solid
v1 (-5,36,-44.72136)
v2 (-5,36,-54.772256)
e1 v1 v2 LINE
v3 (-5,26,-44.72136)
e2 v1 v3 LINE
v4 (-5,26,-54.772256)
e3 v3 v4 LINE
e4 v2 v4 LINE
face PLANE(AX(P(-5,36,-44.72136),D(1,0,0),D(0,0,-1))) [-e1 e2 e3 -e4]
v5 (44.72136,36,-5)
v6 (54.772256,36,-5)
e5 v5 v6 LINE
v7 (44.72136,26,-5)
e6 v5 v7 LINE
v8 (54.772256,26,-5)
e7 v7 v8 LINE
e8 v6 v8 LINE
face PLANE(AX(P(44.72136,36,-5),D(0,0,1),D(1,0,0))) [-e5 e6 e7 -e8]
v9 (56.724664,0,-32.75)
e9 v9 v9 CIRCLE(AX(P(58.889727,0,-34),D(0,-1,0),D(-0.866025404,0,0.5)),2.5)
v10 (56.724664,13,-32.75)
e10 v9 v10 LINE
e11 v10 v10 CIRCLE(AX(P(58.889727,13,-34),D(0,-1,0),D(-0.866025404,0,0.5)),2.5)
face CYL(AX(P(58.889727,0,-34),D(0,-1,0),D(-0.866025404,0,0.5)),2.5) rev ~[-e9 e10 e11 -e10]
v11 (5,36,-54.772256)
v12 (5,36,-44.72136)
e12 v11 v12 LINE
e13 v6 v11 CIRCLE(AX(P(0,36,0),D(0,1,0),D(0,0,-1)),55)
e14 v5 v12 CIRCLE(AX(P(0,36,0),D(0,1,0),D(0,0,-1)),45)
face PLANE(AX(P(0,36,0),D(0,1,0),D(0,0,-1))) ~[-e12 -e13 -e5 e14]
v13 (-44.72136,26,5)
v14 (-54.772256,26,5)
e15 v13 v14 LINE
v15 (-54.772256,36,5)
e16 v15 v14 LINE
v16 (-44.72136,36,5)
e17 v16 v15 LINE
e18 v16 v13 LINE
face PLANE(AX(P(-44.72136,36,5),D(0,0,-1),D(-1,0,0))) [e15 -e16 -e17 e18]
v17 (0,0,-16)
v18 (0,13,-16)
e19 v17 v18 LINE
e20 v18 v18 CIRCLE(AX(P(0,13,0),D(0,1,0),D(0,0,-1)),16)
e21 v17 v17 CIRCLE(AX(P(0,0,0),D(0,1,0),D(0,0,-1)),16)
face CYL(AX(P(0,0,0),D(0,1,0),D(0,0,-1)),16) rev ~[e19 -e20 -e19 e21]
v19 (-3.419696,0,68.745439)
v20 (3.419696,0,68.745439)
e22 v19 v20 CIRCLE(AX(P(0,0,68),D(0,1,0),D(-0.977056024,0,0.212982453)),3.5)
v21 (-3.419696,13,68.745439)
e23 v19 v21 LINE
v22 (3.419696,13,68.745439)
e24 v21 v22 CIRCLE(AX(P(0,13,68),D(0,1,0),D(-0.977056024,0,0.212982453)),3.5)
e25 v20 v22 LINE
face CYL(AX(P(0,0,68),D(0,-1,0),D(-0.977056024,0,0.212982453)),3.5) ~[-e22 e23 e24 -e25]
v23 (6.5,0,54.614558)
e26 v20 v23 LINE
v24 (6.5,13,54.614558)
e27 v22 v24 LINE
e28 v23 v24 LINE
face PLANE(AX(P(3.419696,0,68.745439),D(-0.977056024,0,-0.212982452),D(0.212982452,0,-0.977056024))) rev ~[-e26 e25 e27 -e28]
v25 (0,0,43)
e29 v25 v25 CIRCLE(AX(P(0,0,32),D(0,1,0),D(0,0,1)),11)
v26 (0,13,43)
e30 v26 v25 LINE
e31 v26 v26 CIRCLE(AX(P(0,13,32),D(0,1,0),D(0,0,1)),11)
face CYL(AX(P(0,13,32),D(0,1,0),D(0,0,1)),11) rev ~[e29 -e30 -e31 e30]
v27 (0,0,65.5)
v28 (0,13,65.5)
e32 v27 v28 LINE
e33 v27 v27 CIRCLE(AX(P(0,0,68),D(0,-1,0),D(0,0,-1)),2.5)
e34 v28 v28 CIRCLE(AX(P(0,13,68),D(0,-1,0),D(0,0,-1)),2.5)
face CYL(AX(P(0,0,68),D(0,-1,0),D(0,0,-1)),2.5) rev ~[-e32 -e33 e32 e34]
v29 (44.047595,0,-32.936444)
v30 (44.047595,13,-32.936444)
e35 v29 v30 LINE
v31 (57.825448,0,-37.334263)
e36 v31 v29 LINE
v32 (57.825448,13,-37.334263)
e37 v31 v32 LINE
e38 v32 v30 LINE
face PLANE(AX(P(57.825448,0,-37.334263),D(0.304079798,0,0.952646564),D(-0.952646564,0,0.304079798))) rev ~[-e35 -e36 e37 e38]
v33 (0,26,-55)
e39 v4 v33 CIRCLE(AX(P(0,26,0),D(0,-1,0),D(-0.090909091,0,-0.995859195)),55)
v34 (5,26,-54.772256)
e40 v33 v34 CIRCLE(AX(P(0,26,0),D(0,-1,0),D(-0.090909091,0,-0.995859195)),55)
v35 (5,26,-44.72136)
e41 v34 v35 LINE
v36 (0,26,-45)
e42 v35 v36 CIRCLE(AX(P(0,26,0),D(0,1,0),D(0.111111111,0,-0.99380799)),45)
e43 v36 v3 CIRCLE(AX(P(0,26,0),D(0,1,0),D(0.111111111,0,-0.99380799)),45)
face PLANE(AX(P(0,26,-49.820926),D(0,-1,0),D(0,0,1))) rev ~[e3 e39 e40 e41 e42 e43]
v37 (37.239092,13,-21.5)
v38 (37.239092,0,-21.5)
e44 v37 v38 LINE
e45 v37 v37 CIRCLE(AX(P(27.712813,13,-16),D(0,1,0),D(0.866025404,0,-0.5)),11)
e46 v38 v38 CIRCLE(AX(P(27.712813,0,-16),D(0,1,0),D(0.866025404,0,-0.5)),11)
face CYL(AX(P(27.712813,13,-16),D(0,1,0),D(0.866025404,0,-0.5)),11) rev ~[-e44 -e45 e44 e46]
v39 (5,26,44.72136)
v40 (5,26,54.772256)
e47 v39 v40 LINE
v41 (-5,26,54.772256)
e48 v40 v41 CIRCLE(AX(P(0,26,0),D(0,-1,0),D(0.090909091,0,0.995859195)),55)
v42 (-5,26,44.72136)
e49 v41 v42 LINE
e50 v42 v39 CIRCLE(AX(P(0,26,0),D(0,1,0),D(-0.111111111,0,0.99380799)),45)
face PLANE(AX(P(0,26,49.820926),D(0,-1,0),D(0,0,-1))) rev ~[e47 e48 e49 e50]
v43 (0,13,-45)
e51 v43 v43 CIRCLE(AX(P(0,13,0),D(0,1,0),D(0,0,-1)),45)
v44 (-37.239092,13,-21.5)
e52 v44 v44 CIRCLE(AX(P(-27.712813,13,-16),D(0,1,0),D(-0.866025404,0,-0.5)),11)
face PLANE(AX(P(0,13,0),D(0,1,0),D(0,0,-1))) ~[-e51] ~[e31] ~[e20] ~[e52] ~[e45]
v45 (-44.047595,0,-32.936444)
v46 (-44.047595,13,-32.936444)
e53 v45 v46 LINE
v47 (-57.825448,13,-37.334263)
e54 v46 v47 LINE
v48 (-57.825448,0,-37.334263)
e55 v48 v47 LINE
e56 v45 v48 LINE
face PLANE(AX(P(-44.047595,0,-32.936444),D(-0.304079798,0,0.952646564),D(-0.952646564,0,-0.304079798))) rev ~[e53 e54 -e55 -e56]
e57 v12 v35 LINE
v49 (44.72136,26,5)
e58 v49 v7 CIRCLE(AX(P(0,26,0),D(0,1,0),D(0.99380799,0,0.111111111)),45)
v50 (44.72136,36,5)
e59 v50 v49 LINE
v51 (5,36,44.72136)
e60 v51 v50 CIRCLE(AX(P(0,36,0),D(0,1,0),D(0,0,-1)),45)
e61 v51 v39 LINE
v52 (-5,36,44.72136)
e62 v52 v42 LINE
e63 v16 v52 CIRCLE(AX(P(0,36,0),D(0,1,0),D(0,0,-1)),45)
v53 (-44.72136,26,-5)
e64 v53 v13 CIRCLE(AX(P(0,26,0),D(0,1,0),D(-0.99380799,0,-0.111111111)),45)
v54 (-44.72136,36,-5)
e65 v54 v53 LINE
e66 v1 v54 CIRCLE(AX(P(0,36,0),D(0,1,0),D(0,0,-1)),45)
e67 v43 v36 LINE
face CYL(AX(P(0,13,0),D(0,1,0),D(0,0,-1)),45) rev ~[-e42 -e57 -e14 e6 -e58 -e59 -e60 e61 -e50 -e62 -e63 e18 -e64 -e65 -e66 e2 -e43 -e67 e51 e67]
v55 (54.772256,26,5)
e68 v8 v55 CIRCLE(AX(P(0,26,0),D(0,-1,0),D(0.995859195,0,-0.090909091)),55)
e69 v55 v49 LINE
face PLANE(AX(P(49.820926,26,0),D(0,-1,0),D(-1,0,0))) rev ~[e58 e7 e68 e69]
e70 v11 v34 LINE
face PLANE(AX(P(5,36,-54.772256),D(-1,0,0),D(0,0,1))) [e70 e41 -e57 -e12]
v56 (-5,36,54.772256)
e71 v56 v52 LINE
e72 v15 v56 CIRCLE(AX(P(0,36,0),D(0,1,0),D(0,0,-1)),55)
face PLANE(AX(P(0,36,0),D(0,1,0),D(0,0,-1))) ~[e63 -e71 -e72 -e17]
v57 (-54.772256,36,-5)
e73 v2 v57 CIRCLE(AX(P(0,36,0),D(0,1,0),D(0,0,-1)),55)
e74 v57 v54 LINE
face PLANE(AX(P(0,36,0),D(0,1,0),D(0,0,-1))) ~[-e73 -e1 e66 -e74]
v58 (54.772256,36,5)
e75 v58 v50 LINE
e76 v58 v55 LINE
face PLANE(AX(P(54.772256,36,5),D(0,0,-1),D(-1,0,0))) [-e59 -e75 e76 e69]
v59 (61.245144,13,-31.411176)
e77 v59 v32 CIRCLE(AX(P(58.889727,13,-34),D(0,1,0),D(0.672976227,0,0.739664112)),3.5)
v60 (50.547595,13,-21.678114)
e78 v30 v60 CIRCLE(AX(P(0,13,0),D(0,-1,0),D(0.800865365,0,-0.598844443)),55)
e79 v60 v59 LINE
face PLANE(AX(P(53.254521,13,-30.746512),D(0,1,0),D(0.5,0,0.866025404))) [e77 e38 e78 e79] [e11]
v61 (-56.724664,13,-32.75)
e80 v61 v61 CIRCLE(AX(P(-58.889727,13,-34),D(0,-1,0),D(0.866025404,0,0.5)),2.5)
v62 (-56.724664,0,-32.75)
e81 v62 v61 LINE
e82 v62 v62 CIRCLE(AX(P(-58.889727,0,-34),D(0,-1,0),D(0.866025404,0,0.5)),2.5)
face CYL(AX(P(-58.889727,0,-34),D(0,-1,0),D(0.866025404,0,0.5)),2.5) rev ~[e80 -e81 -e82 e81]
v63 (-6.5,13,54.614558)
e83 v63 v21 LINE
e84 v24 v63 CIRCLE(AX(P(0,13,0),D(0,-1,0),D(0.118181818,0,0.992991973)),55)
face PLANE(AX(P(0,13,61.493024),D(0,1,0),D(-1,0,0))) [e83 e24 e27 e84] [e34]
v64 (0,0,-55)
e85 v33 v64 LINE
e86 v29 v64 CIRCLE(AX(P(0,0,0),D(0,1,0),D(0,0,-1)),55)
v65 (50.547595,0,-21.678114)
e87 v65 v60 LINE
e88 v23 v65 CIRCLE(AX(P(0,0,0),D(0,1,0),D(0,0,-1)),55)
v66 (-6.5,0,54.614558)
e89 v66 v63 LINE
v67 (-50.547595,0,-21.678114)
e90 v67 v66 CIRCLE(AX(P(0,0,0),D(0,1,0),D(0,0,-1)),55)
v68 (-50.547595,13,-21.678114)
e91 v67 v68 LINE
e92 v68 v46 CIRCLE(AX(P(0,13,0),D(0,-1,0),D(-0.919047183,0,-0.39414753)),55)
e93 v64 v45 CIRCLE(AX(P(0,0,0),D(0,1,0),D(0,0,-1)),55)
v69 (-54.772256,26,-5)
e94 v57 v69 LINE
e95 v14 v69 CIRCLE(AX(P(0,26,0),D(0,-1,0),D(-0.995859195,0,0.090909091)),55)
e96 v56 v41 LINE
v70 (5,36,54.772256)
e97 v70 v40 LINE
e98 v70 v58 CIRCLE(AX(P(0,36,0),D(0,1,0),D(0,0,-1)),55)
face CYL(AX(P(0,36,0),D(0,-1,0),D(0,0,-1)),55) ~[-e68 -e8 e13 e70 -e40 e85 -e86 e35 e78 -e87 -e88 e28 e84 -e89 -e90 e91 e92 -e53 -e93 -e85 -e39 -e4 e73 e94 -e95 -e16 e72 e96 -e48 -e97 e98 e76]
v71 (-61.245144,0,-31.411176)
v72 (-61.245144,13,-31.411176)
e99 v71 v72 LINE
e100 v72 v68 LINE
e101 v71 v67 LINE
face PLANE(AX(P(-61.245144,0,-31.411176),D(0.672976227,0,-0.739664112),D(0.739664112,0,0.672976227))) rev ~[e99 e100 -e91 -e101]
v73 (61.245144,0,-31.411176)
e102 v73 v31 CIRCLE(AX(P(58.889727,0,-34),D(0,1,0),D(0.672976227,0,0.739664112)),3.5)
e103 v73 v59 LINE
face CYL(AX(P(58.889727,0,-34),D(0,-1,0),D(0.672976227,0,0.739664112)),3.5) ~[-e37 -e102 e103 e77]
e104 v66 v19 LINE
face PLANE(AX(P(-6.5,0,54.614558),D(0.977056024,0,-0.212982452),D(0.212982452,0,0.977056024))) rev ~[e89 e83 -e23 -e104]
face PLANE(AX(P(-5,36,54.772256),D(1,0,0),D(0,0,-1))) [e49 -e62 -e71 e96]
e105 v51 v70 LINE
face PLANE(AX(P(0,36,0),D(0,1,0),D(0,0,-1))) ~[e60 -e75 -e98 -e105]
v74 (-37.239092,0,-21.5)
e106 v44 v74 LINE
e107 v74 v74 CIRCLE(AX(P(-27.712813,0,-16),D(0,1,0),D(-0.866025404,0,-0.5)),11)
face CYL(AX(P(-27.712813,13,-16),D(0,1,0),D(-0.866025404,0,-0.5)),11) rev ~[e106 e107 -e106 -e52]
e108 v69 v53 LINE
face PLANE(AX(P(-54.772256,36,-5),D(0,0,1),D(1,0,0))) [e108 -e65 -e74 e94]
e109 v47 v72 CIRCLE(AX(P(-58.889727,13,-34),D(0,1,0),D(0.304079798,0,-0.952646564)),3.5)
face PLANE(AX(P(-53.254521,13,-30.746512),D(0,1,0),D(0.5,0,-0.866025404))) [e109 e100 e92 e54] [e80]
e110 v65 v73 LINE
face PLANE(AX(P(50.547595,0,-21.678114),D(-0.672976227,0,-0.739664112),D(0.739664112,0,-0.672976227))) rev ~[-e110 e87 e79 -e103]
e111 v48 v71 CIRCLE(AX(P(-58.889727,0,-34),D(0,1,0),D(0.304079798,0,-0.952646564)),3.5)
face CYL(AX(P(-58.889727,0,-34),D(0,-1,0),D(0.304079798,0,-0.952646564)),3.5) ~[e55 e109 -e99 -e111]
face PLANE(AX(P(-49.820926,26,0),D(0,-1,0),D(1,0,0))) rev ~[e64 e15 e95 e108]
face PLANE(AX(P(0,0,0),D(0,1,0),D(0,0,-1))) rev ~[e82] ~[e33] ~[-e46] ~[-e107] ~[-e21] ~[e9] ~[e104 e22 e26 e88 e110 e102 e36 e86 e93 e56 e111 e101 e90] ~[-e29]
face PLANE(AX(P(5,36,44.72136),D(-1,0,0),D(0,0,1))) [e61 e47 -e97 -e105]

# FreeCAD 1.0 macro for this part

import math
import FreeCAD as App
import Part
import Sketcher

V = App.Vector
Q = App.Units.Quantity


def add_polygon(sketch, points):
    """Adds a closed chain of lines whose ends are joined by coincident constraints."""
    first, n = sketch.GeometryCount, len(points)
    for a, b in zip(points, points[1:] + points[:1]):
        sketch.addGeometry(Part.LineSegment(App.Vector(*a, 0), App.Vector(*b, 0)), False)
    for i in range(n):
        sketch.addConstraint(Sketcher.Constraint("Coincident", first + i, 2, first + (i + 1) % n, 1))

doc = App.newDocument("Part")
body = doc.addObject("PartDesign::Body", "Body")

# Sketch on XY plane
sketch1 = doc.addObject("Sketcher::SketchObject", "Sketch")
body.addObject(sketch1)
sketch1.AttachmentSupport = (doc.XY_Plane, [""])
sketch1.MapMode = "FlatFace"
add_polygon(sketch1, [(16, 13), (16, 0), (55, 0), (55, 36), (45, 36), (45, 13)])  # lines 0-5
sketch1.addConstraint([
    Sketcher.Constraint("Vertical", 0),
    Sketcher.Constraint("Horizontal", 1),
    Sketcher.Constraint("Vertical", 2),
    Sketcher.Constraint("Horizontal", 3),
    Sketcher.Constraint("Vertical", 4),
    Sketcher.Constraint("Horizontal", 5),
    Sketcher.Constraint("PointOnObject", 0, 2, -1),
    Sketcher.Constraint("DistanceX", 1, 1, 1, 2, Q("39 mm")),
    Sketcher.Constraint("DistanceX", 3, 2, 3, 1, Q("10 mm")),
    Sketcher.Constraint("DistanceY", 0, 2, 0, 1, Q("13 mm")),
    Sketcher.Constraint("DistanceY", 2, 1, 2, 2, Q("36 mm")),
    Sketcher.Constraint("DistanceX", -1, 1, 0, 2, Q("16 mm")),
])
revolution = doc.addObject("PartDesign::Revolution", "Revolution")
body.addObject(revolution)
revolution.Profile = sketch1
revolution.ReferenceAxis = (sketch1, ["V_Axis"])
revolution.Angle = 360

# Sketch on XZ plane
sketch2 = doc.addObject("Sketcher::SketchObject", "Sketch001")
body.addObject(sketch2)
sketch2.AttachmentSupport = (doc.XZ_Plane, [""])
sketch2.MapMode = "FlatFace"
sketch2.AttachmentOffset = App.Placement(V(0, 0, -36), App.Rotation())
sketch2.addGeometry([
    Part.LineSegment(V(55, -5, 0), V(45, -5, 0)),
    Part.ArcOfCircle(Part.Circle(V(0, 0, 0), V(0, 0, 1), 45), math.radians(-6.38), math.radians(6.38)),
    Part.LineSegment(V(45, 5, 0), V(55, 5, 0)),
    Part.ArcOfCircle(Part.Circle(V(0, 0, 0), V(0, 0, 1), 55), math.radians(-5.22), math.radians(5.22)),
], False)
sketch2.addConstraint([
    Sketcher.Constraint("Coincident", 0, 2, 1, 1),
    Sketcher.Constraint("Coincident", 1, 2, 2, 1),
    Sketcher.Constraint("Coincident", 2, 2, 3, 2),
    Sketcher.Constraint("Coincident", 3, 1, 0, 1),
    Sketcher.Constraint("Horizontal", 0),
    Sketcher.Constraint("Horizontal", 2),
    Sketcher.Constraint("Coincident", 1, 3, -1, 1),
    Sketcher.Constraint("Coincident", 3, 3, -1, 1),
    Sketcher.Constraint("Vertical", 0, 2, 1, 2),
    Sketcher.Constraint("Radius", 1, Q("45 mm")),
    Sketcher.Constraint("Radius", 3, Q("55 mm")),
    Sketcher.Constraint("DistanceY", 0, 2, -1, 1, Q("5 mm")),
])
pocket1 = doc.addObject("PartDesign::Pocket", "Pocket")
body.addObject(pocket1)
pocket1.Profile = sketch2
pocket1.Length = 10
pocket1.Reversed = True
doc.recompute()

polarpattern = doc.addObject("PartDesign::PolarPattern", "PolarPattern")
body.addObject(polarpattern)
polarpattern.Originals = [pocket1]
polarpattern.Axis = (doc.Y_Axis, [""])
polarpattern.Angle = 360
polarpattern.Occurrences = 4
body.Tip = polarpattern

# Sketch on XZ plane
sketch3 = doc.addObject("Sketcher::SketchObject", "Sketch002")
body.addObject(sketch3)
sketch3.AttachmentSupport = (doc.XZ_Plane, [""])
sketch3.MapMode = "FlatFace"
sketch3.AttachmentOffset = App.Placement(V(0, 0, -13), App.Rotation())
sketch3.addGeometry(Part.Circle(V(0, 32, 0), V(0, 0, 1), 11), False)
sketch3.addConstraint([
    Sketcher.Constraint("PointOnObject", 0, 3, -2),
    Sketcher.Constraint("Diameter", 0, Q("22 mm")),
    Sketcher.Constraint("DistanceY", -1, 1, 0, 3, Q("32 mm")),
])
pocket2 = doc.addObject("PartDesign::Pocket", "Pocket001")
body.addObject(pocket2)
pocket2.Profile = sketch3
pocket2.Type = "ThroughAll"
pocket2.Reversed = True
doc.recompute()

polarpattern2 = doc.addObject("PartDesign::PolarPattern", "PolarPattern001")
body.addObject(polarpattern2)
polarpattern2.Originals = [pocket2]
polarpattern2.Axis = (doc.Y_Axis, [""])
polarpattern2.Angle = 360
polarpattern2.Occurrences = 3
body.Tip = polarpattern2

# Sketch on XZ plane
sketch4 = doc.addObject("Sketcher::SketchObject", "Sketch003")
body.addObject(sketch4)
sketch4.AttachmentSupport = (doc.XZ_Plane, [""])
sketch4.MapMode = "FlatFace"
sketch4.addGeometry([
    Part.LineSegment(V(-3.4, 68.7, 0), V(-6.5, 54.6, 0)),  # 0
    Part.ArcOfCircle(Part.Circle(V(0, 0, 0), V(0, 0, 1), 55), math.radians(83.21), math.radians(96.79)),  # 1
    Part.LineSegment(V(6.5, 54.6, 0), V(3.4, 68.7, 0)),  # 2
    Part.ArcOfCircle(Part.Circle(V(0, 68, 0), V(0, 0, 1), 3.5), math.radians(12), math.radians(168)),  # 3
    Part.Circle(V(0, 68, 0), V(0, 0, 1), 2.5),  # 4
], False)
sketch4.addConstraint([
    Sketcher.Constraint("Coincident", 0, 2, 1, 2),
    Sketcher.Constraint("Coincident", 1, 1, 2, 1),
    Sketcher.Constraint("Tangent", 2, 2, 3, 1),
    Sketcher.Constraint("Tangent", 3, 2, 0, 1),
    Sketcher.Constraint("Coincident", 1, 3, -1, 1),
    Sketcher.Constraint("Coincident", 4, 3, 3, 3),
    Sketcher.Constraint("Symmetric", 2, 2, 3, 2, -2),
    Sketcher.Constraint("Diameter", 4, Q("5 mm")),
    Sketcher.Constraint("Radius", 1, Q("55 mm")),
    Sketcher.Constraint("Radius", 3, Q("3.5 mm")),
    Sketcher.Constraint("DistanceY", -1, 1, 3, 3, Q("68 mm")),
    Sketcher.Constraint("DistanceX", 0, 2, 1, 1, Q("13 mm")),
])
pad1 = doc.addObject("PartDesign::Pad", "Pad")
body.addObject(pad1)
pad1.Profile = sketch4
pad1.Length = 13
pad1.Reversed = True
doc.recompute()

polarpattern3 = doc.addObject("PartDesign::PolarPattern", "PolarPattern002")
body.addObject(polarpattern3)
polarpattern3.Originals = [pad1]
polarpattern3.Axis = (doc.Y_Axis, [""])
polarpattern3.Angle = 360
polarpattern3.Occurrences = 3
body.Tip = polarpattern3

doc.recompute()
